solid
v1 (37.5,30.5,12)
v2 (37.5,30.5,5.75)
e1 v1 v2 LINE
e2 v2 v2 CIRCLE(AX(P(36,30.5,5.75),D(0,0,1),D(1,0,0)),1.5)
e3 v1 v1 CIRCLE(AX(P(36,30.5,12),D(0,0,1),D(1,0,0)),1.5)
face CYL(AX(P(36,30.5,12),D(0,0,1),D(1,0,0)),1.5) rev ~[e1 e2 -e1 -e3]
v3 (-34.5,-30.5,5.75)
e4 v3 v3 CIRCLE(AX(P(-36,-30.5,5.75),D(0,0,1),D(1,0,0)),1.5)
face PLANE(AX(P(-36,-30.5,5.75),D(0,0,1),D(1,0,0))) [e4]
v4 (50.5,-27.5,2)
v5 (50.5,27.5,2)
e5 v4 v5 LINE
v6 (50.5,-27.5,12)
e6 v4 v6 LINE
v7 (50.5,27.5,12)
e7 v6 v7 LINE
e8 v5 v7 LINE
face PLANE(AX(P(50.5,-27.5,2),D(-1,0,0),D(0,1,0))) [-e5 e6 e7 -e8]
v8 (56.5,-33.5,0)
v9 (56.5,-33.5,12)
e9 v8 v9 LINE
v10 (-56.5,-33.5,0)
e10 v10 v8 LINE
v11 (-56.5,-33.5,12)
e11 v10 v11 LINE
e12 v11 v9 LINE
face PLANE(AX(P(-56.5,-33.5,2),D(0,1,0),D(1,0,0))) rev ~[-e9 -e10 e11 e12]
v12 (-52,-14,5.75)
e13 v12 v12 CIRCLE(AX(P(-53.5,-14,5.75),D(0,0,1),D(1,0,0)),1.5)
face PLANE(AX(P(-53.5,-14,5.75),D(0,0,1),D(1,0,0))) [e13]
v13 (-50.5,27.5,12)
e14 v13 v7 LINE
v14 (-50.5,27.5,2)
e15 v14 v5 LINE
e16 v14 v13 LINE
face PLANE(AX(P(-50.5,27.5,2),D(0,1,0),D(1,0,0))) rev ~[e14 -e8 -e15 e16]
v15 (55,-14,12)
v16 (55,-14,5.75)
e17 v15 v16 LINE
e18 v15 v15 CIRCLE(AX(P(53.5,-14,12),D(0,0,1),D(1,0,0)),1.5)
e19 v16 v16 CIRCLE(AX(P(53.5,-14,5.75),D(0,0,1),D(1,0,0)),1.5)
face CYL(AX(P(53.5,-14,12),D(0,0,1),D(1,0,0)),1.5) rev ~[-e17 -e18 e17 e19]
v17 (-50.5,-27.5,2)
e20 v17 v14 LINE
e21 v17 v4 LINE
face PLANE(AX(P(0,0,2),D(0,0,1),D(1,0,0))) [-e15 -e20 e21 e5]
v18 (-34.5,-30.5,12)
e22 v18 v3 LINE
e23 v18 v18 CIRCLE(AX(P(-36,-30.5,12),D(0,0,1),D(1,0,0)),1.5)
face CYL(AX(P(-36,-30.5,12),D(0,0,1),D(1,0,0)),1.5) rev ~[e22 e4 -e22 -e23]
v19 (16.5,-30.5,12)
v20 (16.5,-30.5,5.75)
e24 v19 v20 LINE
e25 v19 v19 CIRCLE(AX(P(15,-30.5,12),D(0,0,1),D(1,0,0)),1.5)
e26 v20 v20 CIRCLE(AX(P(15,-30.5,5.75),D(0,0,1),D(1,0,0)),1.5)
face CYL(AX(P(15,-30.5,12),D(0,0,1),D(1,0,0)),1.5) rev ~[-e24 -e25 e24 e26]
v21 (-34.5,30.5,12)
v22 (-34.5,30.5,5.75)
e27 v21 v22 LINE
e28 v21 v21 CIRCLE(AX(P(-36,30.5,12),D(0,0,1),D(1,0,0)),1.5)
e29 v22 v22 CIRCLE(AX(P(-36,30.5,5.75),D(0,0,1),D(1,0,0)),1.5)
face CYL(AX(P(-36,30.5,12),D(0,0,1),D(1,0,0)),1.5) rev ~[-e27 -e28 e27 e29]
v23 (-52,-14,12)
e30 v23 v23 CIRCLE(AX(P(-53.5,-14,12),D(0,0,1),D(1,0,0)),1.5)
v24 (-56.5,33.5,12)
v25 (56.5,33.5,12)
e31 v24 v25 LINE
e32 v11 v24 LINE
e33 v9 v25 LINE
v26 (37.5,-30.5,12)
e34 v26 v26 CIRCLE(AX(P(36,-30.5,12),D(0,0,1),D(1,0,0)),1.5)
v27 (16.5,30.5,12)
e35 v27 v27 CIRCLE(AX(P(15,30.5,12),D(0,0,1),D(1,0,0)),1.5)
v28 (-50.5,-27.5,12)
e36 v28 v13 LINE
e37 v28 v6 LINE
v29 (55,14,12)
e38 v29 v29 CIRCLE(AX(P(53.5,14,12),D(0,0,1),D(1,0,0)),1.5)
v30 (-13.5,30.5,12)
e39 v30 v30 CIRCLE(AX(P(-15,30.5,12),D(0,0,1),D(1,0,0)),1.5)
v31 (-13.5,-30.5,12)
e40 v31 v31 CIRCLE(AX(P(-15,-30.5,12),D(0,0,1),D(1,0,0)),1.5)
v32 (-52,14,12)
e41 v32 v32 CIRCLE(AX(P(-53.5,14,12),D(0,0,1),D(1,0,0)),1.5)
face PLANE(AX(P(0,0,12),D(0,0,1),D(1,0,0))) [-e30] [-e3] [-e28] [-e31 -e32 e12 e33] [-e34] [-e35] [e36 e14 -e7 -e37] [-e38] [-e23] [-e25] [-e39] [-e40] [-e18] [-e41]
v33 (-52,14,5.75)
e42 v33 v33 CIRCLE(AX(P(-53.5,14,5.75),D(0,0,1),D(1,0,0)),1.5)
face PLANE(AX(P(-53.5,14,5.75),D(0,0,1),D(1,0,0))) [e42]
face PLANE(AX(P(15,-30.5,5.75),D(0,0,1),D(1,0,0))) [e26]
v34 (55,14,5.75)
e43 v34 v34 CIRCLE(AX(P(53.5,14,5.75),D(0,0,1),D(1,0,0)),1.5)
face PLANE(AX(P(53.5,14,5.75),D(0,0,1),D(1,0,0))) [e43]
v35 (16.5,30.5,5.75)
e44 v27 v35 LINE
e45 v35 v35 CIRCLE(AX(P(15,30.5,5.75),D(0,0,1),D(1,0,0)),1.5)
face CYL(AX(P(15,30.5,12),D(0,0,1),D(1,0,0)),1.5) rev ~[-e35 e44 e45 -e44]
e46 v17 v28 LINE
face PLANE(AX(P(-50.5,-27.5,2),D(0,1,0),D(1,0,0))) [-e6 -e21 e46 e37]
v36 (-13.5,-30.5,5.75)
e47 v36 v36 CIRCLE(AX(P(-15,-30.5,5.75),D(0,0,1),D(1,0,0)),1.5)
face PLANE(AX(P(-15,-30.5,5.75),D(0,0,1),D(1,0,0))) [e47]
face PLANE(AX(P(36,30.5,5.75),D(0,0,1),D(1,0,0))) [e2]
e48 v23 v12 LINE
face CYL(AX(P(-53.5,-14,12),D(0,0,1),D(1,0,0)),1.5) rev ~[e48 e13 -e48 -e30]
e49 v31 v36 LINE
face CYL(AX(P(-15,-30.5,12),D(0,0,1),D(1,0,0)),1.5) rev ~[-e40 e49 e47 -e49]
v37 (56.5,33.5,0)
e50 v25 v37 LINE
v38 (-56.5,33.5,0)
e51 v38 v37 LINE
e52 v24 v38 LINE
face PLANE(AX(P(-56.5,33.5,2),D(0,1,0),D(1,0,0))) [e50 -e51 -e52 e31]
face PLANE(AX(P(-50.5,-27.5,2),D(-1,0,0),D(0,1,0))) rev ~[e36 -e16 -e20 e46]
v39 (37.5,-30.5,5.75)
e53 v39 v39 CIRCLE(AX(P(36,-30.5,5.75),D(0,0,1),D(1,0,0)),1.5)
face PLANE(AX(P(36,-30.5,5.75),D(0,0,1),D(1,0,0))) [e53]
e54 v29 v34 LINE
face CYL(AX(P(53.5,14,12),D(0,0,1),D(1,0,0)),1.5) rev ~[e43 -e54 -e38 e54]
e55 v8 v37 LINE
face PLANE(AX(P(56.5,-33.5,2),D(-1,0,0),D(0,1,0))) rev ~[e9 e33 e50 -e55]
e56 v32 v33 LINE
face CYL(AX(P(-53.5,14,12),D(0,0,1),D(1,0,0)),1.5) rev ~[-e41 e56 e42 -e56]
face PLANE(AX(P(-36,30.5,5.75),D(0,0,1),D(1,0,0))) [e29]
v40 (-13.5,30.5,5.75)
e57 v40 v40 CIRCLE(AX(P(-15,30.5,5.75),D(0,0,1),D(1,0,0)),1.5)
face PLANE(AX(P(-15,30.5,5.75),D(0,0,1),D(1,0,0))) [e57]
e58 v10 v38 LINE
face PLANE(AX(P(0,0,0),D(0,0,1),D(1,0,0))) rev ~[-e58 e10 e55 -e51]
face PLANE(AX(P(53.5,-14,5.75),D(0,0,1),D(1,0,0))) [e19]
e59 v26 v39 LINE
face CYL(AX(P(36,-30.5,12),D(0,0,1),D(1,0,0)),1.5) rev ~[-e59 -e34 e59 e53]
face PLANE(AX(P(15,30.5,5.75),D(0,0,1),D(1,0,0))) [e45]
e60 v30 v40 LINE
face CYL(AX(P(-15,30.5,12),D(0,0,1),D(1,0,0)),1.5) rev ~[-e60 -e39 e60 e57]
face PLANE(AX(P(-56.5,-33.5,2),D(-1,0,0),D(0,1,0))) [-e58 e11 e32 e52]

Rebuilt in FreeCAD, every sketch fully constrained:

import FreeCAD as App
import Part
import Sketcher
from FreeCAD import Vector


def add_polygon(sketch, points):
    """Adds a closed chain of lines whose ends are joined by coincident constraints."""
    first, n = sketch.GeometryCount, len(points)
    for a, b in zip(points, points[1:] + points[:1]):
        sketch.addGeometry(Part.LineSegment(App.Vector(*a, 0), App.Vector(*b, 0)), False)
    for i in range(n):
        sketch.addConstraint(Sketcher.Constraint("Coincident", first + i, 2, first + (i + 1) % n, 1))

doc = App.newDocument("Part")
params = doc.addObject("Spreadsheet::Sheet", "Params")
for row, (alias, value) in enumerate([
    ("sketch1_width", "113 mm"),
    ("sketch1_height", "67 mm"),
    ("pad1_length", "2 mm"),
    ("sketch2_width", "113 mm"),
    ("sketch2_width2", "101 mm"),
    ("sketch2_height", "67 mm"),
    ("sketch2_height2", "55 mm"),
    ("pad2_length", "10 mm"),
    ("sketch3_diameter", "3 mm"),
    ("pocket1_length", "6.25 mm"),
], start=1):
    params.set(f"A{row}", alias)
    params.set(f"B{row}", "=" + value)
    params.setAlias(f"B{row}", alias)

body = doc.addObject("PartDesign::Body", "Body")

# Sketch on XY plane
sketch1 = body.newObject("Sketcher::SketchObject", "Sketch")
sketch1.AttachmentSupport = (doc.getObject("XY_Plane"), [""])
sketch1.MapMode = "FlatFace"
add_polygon(sketch1, [(-56, 34), (-56, -34), (56, -34), (56, 34)])  # lines 0-3
sketch1.addConstraint(Sketcher.Constraint("Vertical", 0))
sketch1.addConstraint(Sketcher.Constraint("Horizontal", 1))
sketch1.addConstraint(Sketcher.Constraint("Vertical", 2))
sketch1.addConstraint(Sketcher.Constraint("Horizontal", 3))
sketch1.addConstraint(Sketcher.Constraint("Symmetric", 0, 2, 2, 2, -1, 1))
sketch1.addConstraint(Sketcher.Constraint("DistanceX", 1, 1, 1, 2, 113.0))
sketch1.addConstraint(Sketcher.Constraint("DistanceY", 0, 2, 0, 1, 67.0))
sketch1.setExpression("Constraints[9]", "Params.sketch1_width")
sketch1.setExpression("Constraints[10]", "Params.sketch1_height")
pad1 = body.newObject("PartDesign::Pad", "Pad")
pad1.Profile = sketch1
pad1.setExpression("Length", "Params.pad1_length")

# Sketch on XY plane
sketch2 = body.newObject("Sketcher::SketchObject", "Sketch001")
sketch2.AttachmentSupport = (doc.getObject("XY_Plane"), [""])
sketch2.MapMode = "FlatFace"
sketch2.AttachmentOffset = App.Placement(Vector(0, 0, 2), App.Rotation())
add_polygon(sketch2, [(-56, 34), (-56, -34), (56, -34), (56, 34)])  # lines 0-3
add_polygon(sketch2, [(50, -28), (-50, -28), (-50, 28), (50, 28)])  # lines 4-7
sketch2.addConstraint(Sketcher.Constraint("Vertical", 0))
sketch2.addConstraint(Sketcher.Constraint("Horizontal", 1))
sketch2.addConstraint(Sketcher.Constraint("Vertical", 2))
sketch2.addConstraint(Sketcher.Constraint("Horizontal", 3))
sketch2.addConstraint(Sketcher.Constraint("Horizontal", 4))
sketch2.addConstraint(Sketcher.Constraint("Vertical", 5))
sketch2.addConstraint(Sketcher.Constraint("Horizontal", 6))
sketch2.addConstraint(Sketcher.Constraint("Vertical", 7))
sketch2.addConstraint(Sketcher.Constraint("Symmetric", 0, 2, 2, 2, -1, 1))
sketch2.addConstraint(Sketcher.Constraint("Symmetric", 4, 2, 6, 2, -1, 1))
sketch2.addConstraint(Sketcher.Constraint("DistanceX", 1, 1, 1, 2, 113.0))
sketch2.addConstraint(Sketcher.Constraint("DistanceX", 4, 2, 4, 1, 101.0))
sketch2.addConstraint(Sketcher.Constraint("DistanceY", 0, 2, 0, 1, 67.0))
sketch2.addConstraint(Sketcher.Constraint("DistanceY", 5, 1, 5, 2, 55.0))
sketch2.setExpression("Constraints[18]", "Params.sketch2_width")
sketch2.setExpression("Constraints[19]", "Params.sketch2_width2")
sketch2.setExpression("Constraints[20]", "Params.sketch2_height")
sketch2.setExpression("Constraints[21]", "Params.sketch2_height2")
pad2 = body.newObject("PartDesign::Pad", "Pad001")
pad2.Profile = sketch2
pad2.setExpression("Length", "Params.pad2_length")

# Sketch on XY plane
sketch3 = body.newObject("Sketcher::SketchObject", "Sketch002")
sketch3.AttachmentSupport = (doc.getObject("XY_Plane"), [""])
sketch3.MapMode = "FlatFace"
sketch3.AttachmentOffset = App.Placement(Vector(0, 0, 12), App.Rotation())
sketch3.addGeometry(Part.Circle(Vector(-36, 30.5, 0), Vector(0, 0, 1), 1.5), False)
sketch3.addGeometry(Part.Circle(Vector(-15, 30.5, 0), Vector(0, 0, 1), 1.5), False)
sketch3.addGeometry(Part.Circle(Vector(15, 30.5, 0), Vector(0, 0, 1), 1.5), False)
sketch3.addGeometry(Part.Circle(Vector(36, 30.5, 0), Vector(0, 0, 1), 1.5), False)
sketch3.addGeometry(Part.Circle(Vector(-15, -30.5, 0), Vector(0, 0, 1), 1.5), False)
sketch3.addGeometry(Part.Circle(Vector(-36, -30.5, 0), Vector(0, 0, 1), 1.5), False)
sketch3.addGeometry(Part.Circle(Vector(15, -30.5, 0), Vector(0, 0, 1), 1.5), False)
sketch3.addGeometry(Part.Circle(Vector(36, -30.5, 0), Vector(0, 0, 1), 1.5), False)
sketch3.addGeometry(Part.Circle(Vector(-53.5, 14, 0), Vector(0, 0, 1), 1.5), False)
sketch3.addGeometry(Part.Circle(Vector(-53.5, -14, 0), Vector(0, 0, 1), 1.5), False)
sketch3.addGeometry(Part.Circle(Vector(53.5, 14, 0), Vector(0, 0, 1), 1.5), False)
sketch3.addGeometry(Part.Circle(Vector(53.5, -14, 0), Vector(0, 0, 1), 1.5), False)
sketch3.addConstraint(Sketcher.Constraint("Equal", 0, 1))
sketch3.addConstraint(Sketcher.Constraint("Equal", 1, 2))
sketch3.addConstraint(Sketcher.Constraint("Equal", 2, 3))
sketch3.addConstraint(Sketcher.Constraint("Equal", 3, 4))
sketch3.addConstraint(Sketcher.Constraint("Equal", 4, 5))
sketch3.addConstraint(Sketcher.Constraint("Equal", 5, 6))
sketch3.addConstraint(Sketcher.Constraint("Equal", 6, 7))
sketch3.addConstraint(Sketcher.Constraint("Equal", 7, 8))
sketch3.addConstraint(Sketcher.Constraint("Equal", 8, 9))
sketch3.addConstraint(Sketcher.Constraint("Equal", 9, 10))
sketch3.addConstraint(Sketcher.Constraint("Equal", 10, 11))
sketch3.addConstraint(Sketcher.Constraint("Symmetric", 2, 3, 4, 3, -1, 1))
sketch3.addConstraint(Sketcher.Constraint("Symmetric", 3, 3, 5, 3, -1, 1))
sketch3.addConstraint(Sketcher.Constraint("Symmetric", 1, 3, 6, 3, -1, 1))
sketch3.addConstraint(Sketcher.Constraint("Symmetric", 0, 3, 7, 3, -1, 1))
sketch3.addConstraint(Sketcher.Constraint("Symmetric", 9, 3, 10, 3, -1, 1))
sketch3.addConstraint(Sketcher.Constraint("Symmetric", 8, 3, 11, 3, -1, 1))
sketch3.addConstraint(Sketcher.Constraint("Symmetric", 1, 3, 2, 3, -2))
sketch3.addConstraint(Sketcher.Constraint("Symmetric", 0, 3, 3, 3, -2))
sketch3.addConstraint(Sketcher.Constraint("Symmetric", 8, 3, 10, 3, -2))
sketch3.addConstraint(Sketcher.Constraint("Horizontal", 0, 3, 1, 3))
sketch3.addConstraint(Sketcher.Constraint("Diameter", 0, 3.0))
sketch3.addConstraint(Sketcher.Constraint("DistanceX", 0, 3, -1, 1, 36.0))
sketch3.addConstraint(Sketcher.Constraint("DistanceX", 1, 3, -1, 1, 15.0))
sketch3.addConstraint(Sketcher.Constraint("DistanceY", -1, 1, 8, 3, 14.0))
sketch3.addConstraint(Sketcher.Constraint("DistanceY", 4, 3, 1, 3, 61.0))
sketch3.addConstraint(Sketcher.Constraint("DistanceX", 8, 3, -1, 1, 53.5))
sketch3.setExpression("Constraints[21]", "Params.sketch3_diameter")
pocket1 = body.newObject("PartDesign::Pocket", "Pocket")
pocket1.Profile = sketch3
pocket1.setExpression("Length", "Params.pocket1_length")

doc.recompute()
